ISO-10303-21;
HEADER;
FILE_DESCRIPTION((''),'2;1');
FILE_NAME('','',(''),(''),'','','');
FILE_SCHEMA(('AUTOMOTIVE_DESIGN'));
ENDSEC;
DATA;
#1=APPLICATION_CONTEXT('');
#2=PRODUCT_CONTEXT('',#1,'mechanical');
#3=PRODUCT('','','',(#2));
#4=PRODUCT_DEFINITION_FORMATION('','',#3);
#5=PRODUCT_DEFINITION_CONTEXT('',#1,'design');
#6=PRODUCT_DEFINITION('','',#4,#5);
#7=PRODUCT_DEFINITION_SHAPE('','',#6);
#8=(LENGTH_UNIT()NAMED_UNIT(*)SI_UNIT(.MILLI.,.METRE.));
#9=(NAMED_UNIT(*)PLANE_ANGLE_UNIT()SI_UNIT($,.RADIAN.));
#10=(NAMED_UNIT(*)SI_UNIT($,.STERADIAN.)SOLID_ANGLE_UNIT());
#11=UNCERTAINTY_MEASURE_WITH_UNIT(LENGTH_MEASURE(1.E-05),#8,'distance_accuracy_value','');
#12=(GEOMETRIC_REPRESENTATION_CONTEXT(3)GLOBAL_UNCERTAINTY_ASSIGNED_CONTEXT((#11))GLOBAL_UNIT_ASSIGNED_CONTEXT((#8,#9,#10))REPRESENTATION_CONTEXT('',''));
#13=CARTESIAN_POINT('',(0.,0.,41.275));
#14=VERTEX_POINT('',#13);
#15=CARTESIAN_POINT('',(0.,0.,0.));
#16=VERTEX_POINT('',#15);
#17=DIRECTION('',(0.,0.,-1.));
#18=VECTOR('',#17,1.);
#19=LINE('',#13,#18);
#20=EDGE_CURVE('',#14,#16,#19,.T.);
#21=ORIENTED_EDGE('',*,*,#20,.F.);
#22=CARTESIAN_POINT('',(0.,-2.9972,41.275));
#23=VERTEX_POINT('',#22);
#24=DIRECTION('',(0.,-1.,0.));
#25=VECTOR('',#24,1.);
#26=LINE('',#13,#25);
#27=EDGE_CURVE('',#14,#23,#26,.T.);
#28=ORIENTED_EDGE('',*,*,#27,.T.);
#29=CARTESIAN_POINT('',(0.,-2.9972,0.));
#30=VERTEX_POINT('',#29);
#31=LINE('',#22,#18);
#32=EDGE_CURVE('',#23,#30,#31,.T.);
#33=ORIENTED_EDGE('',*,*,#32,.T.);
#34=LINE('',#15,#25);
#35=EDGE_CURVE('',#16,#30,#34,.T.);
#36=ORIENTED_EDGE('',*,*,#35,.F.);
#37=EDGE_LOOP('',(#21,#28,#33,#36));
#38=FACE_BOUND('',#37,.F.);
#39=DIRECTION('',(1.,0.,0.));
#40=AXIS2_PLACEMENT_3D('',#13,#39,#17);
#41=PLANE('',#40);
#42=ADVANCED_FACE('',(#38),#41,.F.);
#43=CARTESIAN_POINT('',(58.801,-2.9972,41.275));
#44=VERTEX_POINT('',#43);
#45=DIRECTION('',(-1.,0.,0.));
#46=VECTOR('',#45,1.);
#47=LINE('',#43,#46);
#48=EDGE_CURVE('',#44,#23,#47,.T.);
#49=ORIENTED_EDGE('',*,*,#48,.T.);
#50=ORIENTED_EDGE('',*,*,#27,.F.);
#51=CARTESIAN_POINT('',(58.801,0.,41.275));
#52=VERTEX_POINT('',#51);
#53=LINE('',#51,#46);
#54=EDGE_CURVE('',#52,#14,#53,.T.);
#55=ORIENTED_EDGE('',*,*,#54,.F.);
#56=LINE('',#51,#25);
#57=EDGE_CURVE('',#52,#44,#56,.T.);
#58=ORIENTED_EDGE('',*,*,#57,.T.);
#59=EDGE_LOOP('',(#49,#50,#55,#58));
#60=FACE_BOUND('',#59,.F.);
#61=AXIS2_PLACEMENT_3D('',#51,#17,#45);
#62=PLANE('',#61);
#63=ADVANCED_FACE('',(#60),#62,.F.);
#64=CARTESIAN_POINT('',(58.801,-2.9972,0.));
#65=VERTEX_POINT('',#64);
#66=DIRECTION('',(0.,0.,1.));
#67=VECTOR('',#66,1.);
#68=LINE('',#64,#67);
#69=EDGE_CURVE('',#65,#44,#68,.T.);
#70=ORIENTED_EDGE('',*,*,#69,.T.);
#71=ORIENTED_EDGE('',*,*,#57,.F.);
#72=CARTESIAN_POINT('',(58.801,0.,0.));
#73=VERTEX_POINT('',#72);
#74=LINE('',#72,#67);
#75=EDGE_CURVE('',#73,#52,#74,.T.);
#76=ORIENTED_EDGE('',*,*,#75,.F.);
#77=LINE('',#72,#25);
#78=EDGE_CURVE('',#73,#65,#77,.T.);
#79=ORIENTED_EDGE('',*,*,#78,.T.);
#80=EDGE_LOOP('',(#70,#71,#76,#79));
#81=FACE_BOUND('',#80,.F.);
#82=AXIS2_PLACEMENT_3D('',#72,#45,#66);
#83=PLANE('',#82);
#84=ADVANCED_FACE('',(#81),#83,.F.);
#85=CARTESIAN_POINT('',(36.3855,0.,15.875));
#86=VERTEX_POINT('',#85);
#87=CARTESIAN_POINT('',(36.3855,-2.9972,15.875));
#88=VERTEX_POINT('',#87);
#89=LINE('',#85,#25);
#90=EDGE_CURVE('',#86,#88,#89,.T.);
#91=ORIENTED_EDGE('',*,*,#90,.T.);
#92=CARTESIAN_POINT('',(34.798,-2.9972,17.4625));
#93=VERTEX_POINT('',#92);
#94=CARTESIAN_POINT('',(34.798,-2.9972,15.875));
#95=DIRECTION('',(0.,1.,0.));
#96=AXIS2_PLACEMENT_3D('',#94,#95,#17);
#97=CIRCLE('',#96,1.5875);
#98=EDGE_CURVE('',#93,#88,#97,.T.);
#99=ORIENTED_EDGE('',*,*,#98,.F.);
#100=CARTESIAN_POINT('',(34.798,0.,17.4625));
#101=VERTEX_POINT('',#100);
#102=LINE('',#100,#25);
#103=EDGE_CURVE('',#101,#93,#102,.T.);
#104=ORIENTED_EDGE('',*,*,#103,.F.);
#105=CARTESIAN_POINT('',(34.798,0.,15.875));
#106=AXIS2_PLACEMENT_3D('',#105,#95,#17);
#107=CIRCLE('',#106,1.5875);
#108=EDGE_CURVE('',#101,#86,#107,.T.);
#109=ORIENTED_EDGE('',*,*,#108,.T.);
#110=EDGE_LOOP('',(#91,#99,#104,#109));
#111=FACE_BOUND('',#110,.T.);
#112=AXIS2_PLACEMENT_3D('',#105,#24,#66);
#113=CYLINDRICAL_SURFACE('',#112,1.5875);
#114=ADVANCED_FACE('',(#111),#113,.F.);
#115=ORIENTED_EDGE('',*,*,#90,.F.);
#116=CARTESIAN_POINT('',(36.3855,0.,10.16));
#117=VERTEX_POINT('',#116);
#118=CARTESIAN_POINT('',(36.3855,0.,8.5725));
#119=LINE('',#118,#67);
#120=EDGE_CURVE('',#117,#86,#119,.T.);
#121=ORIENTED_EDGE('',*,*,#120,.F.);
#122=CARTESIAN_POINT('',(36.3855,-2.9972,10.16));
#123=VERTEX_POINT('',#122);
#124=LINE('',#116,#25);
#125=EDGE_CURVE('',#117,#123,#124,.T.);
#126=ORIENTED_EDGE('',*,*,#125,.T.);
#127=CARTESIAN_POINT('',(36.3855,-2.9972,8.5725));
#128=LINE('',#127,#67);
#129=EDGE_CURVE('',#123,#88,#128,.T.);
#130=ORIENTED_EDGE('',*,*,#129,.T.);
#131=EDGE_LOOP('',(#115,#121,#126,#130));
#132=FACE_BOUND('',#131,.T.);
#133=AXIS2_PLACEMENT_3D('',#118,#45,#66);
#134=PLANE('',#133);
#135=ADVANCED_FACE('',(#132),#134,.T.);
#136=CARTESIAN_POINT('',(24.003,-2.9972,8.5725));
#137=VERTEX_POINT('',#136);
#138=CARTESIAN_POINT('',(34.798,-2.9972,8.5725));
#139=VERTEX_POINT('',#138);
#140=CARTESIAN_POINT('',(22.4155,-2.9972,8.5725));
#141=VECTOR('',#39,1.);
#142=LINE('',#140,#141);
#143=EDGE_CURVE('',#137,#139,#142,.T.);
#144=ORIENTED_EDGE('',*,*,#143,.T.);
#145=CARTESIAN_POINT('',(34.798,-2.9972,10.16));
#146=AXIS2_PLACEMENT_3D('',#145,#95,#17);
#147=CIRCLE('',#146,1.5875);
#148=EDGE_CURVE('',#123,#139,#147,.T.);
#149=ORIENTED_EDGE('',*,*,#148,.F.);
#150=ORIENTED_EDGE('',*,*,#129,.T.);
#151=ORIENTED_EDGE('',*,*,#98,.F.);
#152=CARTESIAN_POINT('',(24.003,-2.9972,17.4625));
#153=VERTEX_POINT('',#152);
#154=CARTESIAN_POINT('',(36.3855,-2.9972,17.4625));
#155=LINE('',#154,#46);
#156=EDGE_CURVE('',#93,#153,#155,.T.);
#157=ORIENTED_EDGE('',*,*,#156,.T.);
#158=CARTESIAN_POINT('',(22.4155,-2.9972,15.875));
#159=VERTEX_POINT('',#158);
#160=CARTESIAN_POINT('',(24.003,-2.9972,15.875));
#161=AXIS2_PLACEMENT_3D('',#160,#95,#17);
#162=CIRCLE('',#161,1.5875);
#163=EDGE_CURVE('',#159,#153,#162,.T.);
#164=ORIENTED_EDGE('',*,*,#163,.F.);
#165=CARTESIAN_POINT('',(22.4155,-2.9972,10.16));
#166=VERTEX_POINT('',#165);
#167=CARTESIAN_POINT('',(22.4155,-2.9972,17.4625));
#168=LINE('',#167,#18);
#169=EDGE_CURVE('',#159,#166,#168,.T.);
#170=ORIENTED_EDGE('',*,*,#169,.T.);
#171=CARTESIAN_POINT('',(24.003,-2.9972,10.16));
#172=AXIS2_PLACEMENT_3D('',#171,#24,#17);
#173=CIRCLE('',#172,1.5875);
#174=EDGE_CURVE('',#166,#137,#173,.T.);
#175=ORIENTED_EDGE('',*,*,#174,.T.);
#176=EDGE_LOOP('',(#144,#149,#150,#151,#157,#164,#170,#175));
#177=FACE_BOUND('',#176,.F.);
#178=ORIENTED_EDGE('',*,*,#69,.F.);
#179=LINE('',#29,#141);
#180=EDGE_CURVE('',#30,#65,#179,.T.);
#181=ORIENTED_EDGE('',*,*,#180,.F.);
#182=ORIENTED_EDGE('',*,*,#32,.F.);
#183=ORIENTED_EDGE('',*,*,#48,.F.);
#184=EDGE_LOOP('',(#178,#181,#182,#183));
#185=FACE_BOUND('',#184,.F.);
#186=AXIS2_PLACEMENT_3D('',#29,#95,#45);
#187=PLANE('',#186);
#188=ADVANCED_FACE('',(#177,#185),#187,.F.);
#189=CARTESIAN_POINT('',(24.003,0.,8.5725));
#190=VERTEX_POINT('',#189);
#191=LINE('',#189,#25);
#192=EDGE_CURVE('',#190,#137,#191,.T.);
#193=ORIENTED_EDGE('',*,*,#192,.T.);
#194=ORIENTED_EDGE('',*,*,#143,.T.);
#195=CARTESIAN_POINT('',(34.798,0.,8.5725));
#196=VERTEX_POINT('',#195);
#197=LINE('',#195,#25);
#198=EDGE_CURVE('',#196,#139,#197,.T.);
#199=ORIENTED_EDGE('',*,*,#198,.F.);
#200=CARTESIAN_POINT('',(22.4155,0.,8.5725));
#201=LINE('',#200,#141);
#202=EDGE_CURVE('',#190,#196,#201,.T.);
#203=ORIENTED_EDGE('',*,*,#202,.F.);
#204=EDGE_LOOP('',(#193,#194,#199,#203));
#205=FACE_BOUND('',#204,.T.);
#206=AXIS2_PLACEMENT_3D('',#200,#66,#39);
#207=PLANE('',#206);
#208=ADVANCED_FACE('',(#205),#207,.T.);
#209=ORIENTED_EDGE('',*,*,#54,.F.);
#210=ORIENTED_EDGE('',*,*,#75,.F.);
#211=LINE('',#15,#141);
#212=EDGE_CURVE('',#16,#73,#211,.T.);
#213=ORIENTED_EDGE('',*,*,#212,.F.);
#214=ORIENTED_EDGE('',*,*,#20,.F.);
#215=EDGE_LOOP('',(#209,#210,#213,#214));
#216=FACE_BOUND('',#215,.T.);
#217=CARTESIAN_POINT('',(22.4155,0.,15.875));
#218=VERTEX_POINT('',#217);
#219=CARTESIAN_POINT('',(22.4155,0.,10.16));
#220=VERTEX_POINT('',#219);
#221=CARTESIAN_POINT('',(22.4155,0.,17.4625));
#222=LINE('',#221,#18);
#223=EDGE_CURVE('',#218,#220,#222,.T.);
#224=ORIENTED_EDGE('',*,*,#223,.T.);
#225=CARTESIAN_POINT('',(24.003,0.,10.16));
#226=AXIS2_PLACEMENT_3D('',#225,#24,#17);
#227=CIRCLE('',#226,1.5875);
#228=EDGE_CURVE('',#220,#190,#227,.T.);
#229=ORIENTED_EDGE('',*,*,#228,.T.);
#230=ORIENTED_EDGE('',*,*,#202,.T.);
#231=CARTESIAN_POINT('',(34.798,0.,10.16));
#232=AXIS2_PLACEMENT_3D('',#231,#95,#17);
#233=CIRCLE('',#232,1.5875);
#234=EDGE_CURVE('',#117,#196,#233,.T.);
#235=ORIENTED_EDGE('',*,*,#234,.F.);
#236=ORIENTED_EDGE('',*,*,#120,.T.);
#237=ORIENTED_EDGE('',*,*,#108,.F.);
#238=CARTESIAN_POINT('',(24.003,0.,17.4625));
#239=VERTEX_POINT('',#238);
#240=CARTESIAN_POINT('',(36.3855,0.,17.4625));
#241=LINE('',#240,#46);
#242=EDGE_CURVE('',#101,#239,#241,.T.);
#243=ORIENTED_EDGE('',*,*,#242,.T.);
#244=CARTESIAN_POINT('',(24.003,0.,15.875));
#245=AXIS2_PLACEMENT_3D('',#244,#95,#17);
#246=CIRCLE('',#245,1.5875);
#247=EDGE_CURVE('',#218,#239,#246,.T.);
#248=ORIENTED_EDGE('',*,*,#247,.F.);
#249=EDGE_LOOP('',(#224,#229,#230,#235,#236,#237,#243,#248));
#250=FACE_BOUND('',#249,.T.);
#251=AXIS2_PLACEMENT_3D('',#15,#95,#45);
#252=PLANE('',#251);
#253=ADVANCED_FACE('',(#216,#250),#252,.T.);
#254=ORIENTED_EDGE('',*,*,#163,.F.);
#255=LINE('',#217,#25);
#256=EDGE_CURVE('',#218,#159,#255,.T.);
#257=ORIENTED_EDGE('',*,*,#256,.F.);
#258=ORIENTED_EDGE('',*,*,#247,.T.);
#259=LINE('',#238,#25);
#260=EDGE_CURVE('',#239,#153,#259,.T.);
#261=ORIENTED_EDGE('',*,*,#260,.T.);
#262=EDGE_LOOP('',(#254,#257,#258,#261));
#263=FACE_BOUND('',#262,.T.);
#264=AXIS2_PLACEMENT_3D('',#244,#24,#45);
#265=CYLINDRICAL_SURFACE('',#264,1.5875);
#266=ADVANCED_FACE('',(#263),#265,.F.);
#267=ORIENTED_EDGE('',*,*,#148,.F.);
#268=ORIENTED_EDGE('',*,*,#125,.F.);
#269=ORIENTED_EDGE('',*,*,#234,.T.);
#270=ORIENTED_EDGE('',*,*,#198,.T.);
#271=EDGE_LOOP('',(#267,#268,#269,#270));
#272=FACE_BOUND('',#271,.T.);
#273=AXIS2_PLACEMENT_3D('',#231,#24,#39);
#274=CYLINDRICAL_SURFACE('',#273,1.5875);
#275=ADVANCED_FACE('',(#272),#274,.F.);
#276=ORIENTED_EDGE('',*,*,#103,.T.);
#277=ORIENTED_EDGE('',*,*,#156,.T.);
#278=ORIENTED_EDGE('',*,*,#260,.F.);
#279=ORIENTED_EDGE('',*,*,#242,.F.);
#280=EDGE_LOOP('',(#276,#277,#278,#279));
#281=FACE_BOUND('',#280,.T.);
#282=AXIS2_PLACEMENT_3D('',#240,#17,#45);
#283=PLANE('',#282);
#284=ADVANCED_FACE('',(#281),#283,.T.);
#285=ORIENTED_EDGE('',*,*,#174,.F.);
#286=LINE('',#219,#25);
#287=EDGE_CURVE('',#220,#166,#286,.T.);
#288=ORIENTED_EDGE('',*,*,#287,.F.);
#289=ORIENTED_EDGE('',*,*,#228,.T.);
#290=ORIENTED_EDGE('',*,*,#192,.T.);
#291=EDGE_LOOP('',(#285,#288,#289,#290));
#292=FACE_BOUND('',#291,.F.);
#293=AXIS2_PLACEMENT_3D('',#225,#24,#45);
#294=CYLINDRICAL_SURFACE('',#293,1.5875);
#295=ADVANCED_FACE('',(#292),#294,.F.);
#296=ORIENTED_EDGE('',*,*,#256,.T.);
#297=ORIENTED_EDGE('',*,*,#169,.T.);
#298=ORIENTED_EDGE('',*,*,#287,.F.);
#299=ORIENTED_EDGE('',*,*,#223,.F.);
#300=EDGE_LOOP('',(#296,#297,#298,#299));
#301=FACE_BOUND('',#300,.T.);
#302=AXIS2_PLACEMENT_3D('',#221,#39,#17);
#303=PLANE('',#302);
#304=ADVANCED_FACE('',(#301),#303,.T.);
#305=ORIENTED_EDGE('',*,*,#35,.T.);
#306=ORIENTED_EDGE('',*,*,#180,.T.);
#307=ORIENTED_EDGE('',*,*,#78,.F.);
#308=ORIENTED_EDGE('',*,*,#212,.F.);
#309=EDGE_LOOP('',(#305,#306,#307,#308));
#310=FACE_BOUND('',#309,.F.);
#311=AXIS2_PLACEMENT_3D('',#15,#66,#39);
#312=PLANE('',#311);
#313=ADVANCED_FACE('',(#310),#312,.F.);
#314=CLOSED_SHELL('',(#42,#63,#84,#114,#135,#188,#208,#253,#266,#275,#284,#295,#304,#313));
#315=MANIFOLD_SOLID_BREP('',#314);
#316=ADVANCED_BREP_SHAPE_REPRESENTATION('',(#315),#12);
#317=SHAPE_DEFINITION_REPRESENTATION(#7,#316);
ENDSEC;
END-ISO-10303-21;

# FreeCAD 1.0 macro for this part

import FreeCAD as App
import Part
import Sketcher
from FreeCAD import Vector
Q = App.Units.Quantity


def edges_at(feature, points):
    """Names of the edges that pass closest to the given points."""
    edges = feature.Shape.Edges
    near = lambda p: min(range(len(edges)), key=lambda i: edges[i].distToShape(Part.Vertex(*p))[0])
    return sorted({f"Edge{near(p) + 1}" for p in points})


def add_polygon(sketch, points):
    """Adds a closed chain of lines whose ends are joined by coincident constraints."""
    first, n = sketch.GeometryCount, len(points)
    for a, b in zip(points, points[1:] + points[:1]):
        sketch.addGeometry(Part.LineSegment(App.Vector(*a, 0), App.Vector(*b, 0)), False)
    for i in range(n):
        sketch.addConstraint(Sketcher.Constraint("Coincident", first + i, 2, first + (i + 1) % n, 1))

doc = App.newDocument("Part")
params = doc.addObject("Spreadsheet::Sheet", "Params")
for row, (alias, value) in enumerate([
    ("sketch1_width", "2.315 in"),
    ("sketch1_height", "1.625 in"),
    ("pad1_length", "0.118 in"),
    ("sketch2_width", "0.55 in"),
    ("sketch2_height", "0.35 in"),
    ("pocket1_length", "0.118 in"),
    ("fillet_radius", "0.0625 in"),
], start=1):
    params.set(f"A{row}", alias)
    params.set(f"B{row}", "=" + value)
    params.setAlias(f"B{row}", alias)

body = doc.addObject("PartDesign::Body", "Body")

# Sketch on XZ plane
sketch1 = doc.addObject("Sketcher::SketchObject", "Sketch")
body.addObject(sketch1)
sketch1.AttachmentSupport = (doc.XZ_Plane, [""])
sketch1.MapMode = "FlatFace"
add_polygon(sketch1, [(59, 0), (0, 0), (0, 41), (59, 41)])  # lines 0-3
sketch1.addConstraint([
    Sketcher.Constraint("Horizontal", 0),
    Sketcher.Constraint("Vertical", 1),
    Sketcher.Constraint("Horizontal", 2),
    Sketcher.Constraint("Vertical", 3),
    Sketcher.Constraint("Coincident", 0, 2, -1, 1),
    Sketcher.Constraint("DistanceX", 0, 2, 0, 1, Q("2.315 in")),
    Sketcher.Constraint("DistanceY", 1, 1, 1, 2, Q("1.625 in")),
])
sketch1.setExpression("Constraints[9]", "Params.sketch1_width")
sketch1.setExpression("Constraints[10]", "Params.sketch1_height")
pad1 = doc.addObject("PartDesign::Pad", "Pad")
body.addObject(pad1)
pad1.Profile = sketch1
pad1.setExpression("Length", "Params.pad1_length")

# Sketch on XZ plane
sketch2 = doc.addObject("Sketcher::SketchObject", "Sketch001")
body.addObject(sketch2)
sketch2.AttachmentSupport = (doc.XZ_Plane, [""])
sketch2.MapMode = "FlatFace"
add_polygon(sketch2, [(36, 9), (22, 9), (22, 17), (36, 17)])  # lines 0-3
sketch2.addConstraint([
    Sketcher.Constraint("Horizontal", 0),
    Sketcher.Constraint("Vertical", 1),
    Sketcher.Constraint("Horizontal", 2),
    Sketcher.Constraint("Vertical", 3),
    Sketcher.Constraint("DistanceX", 0, 2, 0, 1, Q("0.55 in")),
    Sketcher.Constraint("DistanceY", 1, 1, 1, 2, Q("0.35 in")),
    Sketcher.Constraint("DistanceY", -1, 1, 1, 2, Q("0.6875 in")),
    Sketcher.Constraint("DistanceX", -1, 1, 0, 2, Q("0.8825 in")),
])
sketch2.setExpression("Constraints[8]", "Params.sketch2_width")
sketch2.setExpression("Constraints[9]", "Params.sketch2_height")
pocket1 = doc.addObject("PartDesign::Pocket", "Pocket")
body.addObject(pocket1)
pocket1.Profile = sketch2
pocket1.setExpression("Length", "Params.pocket1_length")
pocket1.Reversed = True
doc.recompute()

fillet = doc.addObject("PartDesign::Fillet", "Fillet")
body.addObject(fillet)
fillet.Base = (pocket1, edges_at(pocket1, [
    (22.416, -1.499, 8.572),
    (22.416, -1.499, 17.462),
    (36.386, -1.499, 17.462),
    (36.386, -1.499, 8.572),
]))
fillet.setExpression("Radius", "Params.fillet_radius")

doc.recompute()
